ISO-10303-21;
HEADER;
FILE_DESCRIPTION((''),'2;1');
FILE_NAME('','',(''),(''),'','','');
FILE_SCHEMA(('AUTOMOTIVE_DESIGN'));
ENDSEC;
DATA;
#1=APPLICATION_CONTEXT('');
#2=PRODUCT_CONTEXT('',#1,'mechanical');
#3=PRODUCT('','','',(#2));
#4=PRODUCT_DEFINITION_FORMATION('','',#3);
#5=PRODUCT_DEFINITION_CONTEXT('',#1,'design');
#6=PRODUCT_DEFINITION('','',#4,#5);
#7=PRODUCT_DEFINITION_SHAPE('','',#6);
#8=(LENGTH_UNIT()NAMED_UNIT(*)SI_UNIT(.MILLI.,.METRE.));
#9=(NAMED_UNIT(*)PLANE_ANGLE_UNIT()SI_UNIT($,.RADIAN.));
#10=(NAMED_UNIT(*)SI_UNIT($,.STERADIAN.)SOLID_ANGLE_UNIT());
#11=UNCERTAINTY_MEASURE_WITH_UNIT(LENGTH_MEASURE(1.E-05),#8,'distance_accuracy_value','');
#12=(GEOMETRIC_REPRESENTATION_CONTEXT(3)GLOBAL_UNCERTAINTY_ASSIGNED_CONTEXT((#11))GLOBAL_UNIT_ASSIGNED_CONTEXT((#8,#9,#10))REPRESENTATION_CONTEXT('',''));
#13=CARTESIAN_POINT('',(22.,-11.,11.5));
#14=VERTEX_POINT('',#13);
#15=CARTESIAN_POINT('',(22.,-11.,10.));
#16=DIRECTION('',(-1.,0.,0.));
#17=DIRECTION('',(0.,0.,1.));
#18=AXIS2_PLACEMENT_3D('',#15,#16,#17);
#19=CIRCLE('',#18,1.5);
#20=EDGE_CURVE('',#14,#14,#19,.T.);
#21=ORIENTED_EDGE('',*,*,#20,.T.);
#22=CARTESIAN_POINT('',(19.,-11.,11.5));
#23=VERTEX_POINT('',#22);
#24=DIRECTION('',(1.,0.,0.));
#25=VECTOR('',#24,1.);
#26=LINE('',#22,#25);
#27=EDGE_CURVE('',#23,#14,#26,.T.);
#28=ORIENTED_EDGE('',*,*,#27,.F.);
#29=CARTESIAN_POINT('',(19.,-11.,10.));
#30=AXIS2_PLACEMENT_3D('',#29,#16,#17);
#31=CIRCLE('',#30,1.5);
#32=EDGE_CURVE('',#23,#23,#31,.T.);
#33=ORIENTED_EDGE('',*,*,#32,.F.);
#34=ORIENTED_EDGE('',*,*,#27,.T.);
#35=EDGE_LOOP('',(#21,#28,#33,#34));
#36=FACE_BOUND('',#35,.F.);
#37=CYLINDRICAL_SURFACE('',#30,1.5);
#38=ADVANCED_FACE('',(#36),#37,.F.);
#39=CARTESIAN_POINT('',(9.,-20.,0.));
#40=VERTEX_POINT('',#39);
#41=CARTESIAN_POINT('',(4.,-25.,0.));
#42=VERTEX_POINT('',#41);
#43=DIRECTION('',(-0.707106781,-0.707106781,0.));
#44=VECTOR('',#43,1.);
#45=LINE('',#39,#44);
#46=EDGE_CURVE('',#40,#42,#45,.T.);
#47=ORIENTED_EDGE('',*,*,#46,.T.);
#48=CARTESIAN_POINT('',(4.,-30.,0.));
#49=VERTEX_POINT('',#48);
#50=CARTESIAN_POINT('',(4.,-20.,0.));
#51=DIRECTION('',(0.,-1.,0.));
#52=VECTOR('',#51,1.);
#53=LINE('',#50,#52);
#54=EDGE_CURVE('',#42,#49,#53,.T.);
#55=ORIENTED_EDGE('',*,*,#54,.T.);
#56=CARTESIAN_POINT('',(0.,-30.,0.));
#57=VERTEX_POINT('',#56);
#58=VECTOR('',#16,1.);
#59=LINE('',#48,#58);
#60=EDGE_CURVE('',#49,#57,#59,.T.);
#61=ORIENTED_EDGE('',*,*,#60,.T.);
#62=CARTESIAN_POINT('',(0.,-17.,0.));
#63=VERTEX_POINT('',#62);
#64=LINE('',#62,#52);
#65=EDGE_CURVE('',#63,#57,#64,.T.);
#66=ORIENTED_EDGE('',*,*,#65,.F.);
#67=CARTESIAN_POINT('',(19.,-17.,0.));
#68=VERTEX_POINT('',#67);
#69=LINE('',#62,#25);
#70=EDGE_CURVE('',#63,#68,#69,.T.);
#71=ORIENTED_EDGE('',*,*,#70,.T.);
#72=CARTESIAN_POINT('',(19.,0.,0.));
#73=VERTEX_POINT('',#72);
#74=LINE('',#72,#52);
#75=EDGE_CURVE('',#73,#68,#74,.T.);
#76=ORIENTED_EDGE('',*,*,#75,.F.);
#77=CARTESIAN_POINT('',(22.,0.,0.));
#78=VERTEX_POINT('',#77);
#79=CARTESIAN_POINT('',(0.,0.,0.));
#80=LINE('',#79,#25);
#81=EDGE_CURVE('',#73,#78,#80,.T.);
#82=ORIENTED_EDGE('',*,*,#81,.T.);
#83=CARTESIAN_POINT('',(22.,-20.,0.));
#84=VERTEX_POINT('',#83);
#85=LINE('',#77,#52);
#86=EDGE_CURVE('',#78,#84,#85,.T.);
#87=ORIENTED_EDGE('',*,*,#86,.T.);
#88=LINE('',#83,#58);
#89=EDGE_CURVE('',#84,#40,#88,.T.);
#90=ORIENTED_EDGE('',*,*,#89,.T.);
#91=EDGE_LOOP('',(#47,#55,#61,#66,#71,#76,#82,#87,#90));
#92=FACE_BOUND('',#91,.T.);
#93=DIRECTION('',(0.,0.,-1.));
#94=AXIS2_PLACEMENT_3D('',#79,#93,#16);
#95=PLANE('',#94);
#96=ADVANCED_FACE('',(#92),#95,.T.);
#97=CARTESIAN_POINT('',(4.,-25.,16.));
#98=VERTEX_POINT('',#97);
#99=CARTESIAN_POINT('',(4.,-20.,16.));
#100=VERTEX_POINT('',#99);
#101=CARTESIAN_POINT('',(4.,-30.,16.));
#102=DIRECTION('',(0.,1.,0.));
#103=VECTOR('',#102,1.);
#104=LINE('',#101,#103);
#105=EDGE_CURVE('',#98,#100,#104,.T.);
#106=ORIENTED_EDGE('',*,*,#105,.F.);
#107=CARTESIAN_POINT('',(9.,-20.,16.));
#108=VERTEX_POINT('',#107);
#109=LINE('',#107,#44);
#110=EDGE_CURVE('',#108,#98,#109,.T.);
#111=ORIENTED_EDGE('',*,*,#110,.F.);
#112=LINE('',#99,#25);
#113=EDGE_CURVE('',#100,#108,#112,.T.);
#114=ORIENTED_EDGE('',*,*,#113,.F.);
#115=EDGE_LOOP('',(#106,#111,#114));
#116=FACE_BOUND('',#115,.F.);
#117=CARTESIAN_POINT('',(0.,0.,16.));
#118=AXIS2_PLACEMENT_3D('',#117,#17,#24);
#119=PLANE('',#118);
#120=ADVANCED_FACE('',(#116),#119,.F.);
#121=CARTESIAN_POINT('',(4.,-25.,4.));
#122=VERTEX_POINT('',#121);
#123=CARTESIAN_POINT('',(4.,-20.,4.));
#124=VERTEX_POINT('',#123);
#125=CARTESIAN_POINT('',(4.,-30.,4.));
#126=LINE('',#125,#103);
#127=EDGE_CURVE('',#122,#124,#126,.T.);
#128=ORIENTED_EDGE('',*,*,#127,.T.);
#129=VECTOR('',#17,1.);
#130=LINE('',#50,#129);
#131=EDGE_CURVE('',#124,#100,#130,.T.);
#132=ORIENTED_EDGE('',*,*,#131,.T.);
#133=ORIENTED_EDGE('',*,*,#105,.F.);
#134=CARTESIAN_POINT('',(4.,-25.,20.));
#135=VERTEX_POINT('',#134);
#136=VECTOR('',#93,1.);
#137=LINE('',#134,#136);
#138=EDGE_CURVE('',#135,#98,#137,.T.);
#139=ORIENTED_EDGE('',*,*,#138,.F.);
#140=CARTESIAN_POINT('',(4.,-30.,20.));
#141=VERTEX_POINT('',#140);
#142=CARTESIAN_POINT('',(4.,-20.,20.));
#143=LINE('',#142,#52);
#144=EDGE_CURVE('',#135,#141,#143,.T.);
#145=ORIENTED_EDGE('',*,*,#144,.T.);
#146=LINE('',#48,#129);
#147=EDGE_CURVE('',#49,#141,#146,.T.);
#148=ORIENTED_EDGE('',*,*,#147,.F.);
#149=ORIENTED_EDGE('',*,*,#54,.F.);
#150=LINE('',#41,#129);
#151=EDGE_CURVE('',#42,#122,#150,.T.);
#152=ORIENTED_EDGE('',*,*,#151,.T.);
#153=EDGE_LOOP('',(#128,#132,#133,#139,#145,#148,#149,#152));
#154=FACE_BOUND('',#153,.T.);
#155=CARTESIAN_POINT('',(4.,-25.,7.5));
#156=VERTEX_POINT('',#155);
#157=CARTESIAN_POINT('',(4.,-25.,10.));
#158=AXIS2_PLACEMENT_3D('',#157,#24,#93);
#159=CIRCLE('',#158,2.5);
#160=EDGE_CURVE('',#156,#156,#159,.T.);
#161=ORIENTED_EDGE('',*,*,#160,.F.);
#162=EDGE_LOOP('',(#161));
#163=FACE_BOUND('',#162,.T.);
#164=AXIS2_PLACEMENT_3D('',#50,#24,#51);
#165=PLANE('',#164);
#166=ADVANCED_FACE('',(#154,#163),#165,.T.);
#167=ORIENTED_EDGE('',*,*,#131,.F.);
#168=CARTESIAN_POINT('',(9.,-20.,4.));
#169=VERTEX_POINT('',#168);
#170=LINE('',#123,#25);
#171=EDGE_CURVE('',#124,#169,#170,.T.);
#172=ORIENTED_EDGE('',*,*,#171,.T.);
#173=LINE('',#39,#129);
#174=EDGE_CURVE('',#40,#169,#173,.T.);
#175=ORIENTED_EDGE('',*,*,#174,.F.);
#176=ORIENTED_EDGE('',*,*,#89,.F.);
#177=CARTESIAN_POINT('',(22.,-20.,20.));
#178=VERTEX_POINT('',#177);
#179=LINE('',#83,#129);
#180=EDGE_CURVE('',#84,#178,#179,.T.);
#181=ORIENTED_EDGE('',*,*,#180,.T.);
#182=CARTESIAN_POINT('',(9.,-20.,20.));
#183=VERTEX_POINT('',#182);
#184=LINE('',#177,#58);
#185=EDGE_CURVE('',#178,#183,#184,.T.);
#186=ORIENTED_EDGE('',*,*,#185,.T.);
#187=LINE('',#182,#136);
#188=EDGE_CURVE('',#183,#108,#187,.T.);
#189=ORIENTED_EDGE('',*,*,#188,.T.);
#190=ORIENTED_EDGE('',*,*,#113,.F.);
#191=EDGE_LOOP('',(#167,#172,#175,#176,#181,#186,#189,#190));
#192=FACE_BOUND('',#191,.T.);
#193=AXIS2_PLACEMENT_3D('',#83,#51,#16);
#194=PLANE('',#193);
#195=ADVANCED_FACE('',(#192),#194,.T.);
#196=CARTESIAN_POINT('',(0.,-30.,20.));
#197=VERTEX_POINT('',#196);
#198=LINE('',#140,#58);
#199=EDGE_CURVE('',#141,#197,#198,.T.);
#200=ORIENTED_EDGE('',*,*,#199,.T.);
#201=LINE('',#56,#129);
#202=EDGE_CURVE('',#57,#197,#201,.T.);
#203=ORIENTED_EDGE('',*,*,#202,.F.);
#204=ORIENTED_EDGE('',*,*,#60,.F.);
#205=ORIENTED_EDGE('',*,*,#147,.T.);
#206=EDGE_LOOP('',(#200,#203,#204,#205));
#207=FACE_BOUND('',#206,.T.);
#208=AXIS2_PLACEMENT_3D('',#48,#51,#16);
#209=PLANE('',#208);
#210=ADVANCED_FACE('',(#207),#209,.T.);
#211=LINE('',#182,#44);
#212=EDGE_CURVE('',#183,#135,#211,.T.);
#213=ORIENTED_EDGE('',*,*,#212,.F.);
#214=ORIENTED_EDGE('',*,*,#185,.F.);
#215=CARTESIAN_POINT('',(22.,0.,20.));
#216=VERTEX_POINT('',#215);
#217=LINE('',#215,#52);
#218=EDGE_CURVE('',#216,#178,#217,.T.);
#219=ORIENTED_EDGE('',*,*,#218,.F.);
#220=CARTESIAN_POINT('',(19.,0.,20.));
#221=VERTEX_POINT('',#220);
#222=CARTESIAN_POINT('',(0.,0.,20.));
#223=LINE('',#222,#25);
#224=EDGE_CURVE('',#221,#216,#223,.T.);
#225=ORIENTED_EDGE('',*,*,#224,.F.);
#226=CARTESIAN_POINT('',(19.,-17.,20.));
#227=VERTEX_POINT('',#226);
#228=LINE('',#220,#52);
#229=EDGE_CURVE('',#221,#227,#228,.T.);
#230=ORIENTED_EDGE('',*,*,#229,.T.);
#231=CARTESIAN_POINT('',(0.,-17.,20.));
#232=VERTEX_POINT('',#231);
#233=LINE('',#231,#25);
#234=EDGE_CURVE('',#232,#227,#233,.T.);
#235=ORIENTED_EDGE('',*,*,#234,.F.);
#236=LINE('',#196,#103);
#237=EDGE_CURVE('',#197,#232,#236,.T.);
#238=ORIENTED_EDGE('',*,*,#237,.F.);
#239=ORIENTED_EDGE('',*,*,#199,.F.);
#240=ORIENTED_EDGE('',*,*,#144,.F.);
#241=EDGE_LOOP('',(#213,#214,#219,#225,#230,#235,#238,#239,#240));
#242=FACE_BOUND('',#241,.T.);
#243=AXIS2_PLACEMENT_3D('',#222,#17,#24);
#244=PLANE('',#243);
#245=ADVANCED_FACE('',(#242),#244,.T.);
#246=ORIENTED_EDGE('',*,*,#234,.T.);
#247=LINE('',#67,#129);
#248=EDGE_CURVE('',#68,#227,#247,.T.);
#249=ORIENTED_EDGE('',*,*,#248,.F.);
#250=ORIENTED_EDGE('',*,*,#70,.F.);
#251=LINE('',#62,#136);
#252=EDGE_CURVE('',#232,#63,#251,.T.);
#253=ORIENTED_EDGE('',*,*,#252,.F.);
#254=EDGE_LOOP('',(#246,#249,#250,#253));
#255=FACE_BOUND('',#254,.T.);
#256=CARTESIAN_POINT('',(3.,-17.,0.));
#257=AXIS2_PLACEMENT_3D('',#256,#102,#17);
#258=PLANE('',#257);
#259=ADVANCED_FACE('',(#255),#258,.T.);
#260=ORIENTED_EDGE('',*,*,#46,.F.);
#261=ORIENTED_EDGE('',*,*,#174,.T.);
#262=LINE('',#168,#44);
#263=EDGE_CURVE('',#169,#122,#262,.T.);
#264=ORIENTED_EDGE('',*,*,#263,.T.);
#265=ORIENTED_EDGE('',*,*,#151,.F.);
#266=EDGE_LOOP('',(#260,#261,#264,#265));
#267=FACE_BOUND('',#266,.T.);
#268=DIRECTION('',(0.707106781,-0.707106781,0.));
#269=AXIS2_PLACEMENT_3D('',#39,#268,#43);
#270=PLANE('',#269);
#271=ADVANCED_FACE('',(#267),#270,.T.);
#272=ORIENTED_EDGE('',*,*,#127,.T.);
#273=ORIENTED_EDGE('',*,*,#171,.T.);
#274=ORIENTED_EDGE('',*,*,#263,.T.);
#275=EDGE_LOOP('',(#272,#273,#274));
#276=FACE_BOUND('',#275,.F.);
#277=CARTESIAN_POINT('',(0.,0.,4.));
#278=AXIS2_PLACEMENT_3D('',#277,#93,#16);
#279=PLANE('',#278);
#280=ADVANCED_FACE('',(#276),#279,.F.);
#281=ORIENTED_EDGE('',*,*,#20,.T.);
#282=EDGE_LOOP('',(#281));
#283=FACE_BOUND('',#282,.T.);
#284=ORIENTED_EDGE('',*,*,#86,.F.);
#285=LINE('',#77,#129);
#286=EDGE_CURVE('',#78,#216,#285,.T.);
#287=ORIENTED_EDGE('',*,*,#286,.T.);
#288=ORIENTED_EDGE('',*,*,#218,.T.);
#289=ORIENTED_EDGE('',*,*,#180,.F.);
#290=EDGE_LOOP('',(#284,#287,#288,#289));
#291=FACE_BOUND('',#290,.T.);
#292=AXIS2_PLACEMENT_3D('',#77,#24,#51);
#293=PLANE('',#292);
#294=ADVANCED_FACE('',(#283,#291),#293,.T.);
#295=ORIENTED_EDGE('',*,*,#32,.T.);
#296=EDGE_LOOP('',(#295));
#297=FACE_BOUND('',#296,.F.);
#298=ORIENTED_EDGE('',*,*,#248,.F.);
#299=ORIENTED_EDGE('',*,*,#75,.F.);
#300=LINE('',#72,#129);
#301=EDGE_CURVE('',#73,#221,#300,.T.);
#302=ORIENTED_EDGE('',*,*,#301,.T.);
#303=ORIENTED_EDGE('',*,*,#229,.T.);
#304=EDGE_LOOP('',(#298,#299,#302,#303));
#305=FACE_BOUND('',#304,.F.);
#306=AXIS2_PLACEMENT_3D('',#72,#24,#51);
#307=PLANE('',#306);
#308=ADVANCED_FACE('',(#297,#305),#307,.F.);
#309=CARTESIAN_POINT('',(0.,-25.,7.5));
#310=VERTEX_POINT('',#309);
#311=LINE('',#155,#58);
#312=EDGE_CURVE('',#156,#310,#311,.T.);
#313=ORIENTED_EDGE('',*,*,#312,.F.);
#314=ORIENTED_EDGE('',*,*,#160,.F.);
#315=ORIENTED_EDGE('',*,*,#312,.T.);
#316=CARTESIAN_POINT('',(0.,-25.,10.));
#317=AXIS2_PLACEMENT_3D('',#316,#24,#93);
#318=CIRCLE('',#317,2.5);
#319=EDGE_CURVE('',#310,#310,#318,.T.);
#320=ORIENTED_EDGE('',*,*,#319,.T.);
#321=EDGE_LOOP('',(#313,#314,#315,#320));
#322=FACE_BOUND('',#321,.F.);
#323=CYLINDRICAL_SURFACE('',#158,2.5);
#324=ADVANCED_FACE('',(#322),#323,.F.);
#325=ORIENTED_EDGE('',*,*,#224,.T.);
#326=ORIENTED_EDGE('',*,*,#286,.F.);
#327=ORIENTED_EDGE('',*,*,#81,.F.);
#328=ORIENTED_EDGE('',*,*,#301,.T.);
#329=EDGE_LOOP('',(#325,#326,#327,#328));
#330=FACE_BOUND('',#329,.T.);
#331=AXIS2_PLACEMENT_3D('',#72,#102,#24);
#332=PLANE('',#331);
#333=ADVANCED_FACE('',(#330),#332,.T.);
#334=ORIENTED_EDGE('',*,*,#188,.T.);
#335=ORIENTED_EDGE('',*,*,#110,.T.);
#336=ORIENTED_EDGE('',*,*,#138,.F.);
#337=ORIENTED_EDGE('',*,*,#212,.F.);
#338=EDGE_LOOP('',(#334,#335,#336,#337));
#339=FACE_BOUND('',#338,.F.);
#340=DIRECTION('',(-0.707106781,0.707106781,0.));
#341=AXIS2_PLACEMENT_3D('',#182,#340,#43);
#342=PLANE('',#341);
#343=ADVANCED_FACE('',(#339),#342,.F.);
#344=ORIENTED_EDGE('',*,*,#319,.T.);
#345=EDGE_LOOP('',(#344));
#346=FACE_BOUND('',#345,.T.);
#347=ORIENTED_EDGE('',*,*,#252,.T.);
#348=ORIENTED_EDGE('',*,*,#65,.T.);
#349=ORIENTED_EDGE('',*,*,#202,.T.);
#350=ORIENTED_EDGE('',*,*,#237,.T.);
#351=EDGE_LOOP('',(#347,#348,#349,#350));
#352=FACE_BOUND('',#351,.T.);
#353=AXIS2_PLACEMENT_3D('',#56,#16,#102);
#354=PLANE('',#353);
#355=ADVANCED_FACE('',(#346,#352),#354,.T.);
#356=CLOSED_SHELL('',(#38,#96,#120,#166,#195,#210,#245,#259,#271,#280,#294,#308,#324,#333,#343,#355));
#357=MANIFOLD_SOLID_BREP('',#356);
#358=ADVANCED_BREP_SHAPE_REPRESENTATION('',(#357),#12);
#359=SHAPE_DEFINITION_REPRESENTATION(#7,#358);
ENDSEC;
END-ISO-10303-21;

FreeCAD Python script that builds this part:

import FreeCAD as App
import Part
import Sketcher
from FreeCAD import Vector


def add_polygon(sketch, points):
    """Adds a closed chain of lines whose ends are joined by coincident constraints."""
    first, n = sketch.GeometryCount, len(points)
    for a, b in zip(points, points[1:] + points[:1]):
        sketch.addGeometry(Part.LineSegment(App.Vector(*a, 0), App.Vector(*b, 0)), False)
    for i in range(n):
        sketch.addConstraint(Sketcher.Constraint("Coincident", first + i, 2, first + (i + 1) % n, 1))

doc = App.newDocument("Part")
body = doc.addObject("PartDesign::Body", "Body")

sketch1 = doc.addObject("Sketcher::SketchObject", "Sketch")
body.addObject(sketch1)
sketch1.AttachmentSupport = (doc.XY_Plane, [""])
sketch1.MapMode = "FlatFace"
add_polygon(sketch1, [(3, 0), (0, 0), (0, -20), (22, -20), (22, 0), (19, 0), (19, -17), (3, -17)])
sketch1.addConstraint([
    Sketcher.Constraint("Horizontal", 0),
    Sketcher.Constraint("Vertical", 1),
    Sketcher.Constraint("Horizontal", 2),
    Sketcher.Constraint("Vertical", 3),
    Sketcher.Constraint("Horizontal", 4),
    Sketcher.Constraint("Vertical", 5),
    Sketcher.Constraint("Horizontal", 6),
    Sketcher.Constraint("Vertical", 7),
    Sketcher.Constraint("Coincident", 0, 2, -1, 1),
    Sketcher.Constraint("PointOnObject", 3, 2, -1),
    Sketcher.Constraint("Equal", 0, 4),
    Sketcher.Constraint("DistanceX", 0, 2, 0, 1, 3.0),
    Sketcher.Constraint("DistanceX", 2, 1, 2, 2, 22.0),
    Sketcher.Constraint("DistanceY", 1, 2, 1, 1, 20.0),
    Sketcher.Constraint("DistanceY", 2, 2, 5, 2, 3.0),
])
pad1 = doc.addObject("PartDesign::Pad", "Pad")
body.addObject(pad1)
pad1.Profile = sketch1
pad1.Length = 20

sketch2 = doc.addObject("Sketcher::SketchObject", "Sketch001")
body.addObject(sketch2)
sketch2.AttachmentSupport = (doc.YZ_Plane, [""])
sketch2.MapMode = "FlatFace"
sketch2.AttachmentOffset = App.Placement(Vector(0, 0, 3), App.Rotation())
add_polygon(sketch2, [(0, 20), (-17, 20), (-17, 0), (0, 0)])
sketch2.addConstraint([
    Sketcher.Constraint("Horizontal", 0),
    Sketcher.Constraint("Vertical", 1),
    Sketcher.Constraint("Horizontal", 2),
    Sketcher.Constraint("Vertical", 3),
    Sketcher.Constraint("Coincident", 2, 2, -1, 1),
    Sketcher.Constraint("DistanceX", 0, 2, 0, 1, 17.0),
    Sketcher.Constraint("DistanceY", 1, 2, 1, 1, 20.0),
])
pocket1 = doc.addObject("PartDesign::Pocket", "Pocket")
body.addObject(pocket1)
pocket1.Profile = sketch2
pocket1.Type = "ThroughAll"

sketch3 = doc.addObject("Sketcher::SketchObject", "Sketch002")
body.addObject(sketch3)
sketch3.AttachmentSupport = (doc.XY_Plane, [""])
sketch3.MapMode = "FlatFace"
add_polygon(sketch3, [(0, -30), (0, -20), (4, -20), (4, -30)])
sketch3.addConstraint([
    Sketcher.Constraint("Vertical", 0),
    Sketcher.Constraint("Horizontal", 1),
    Sketcher.Constraint("Vertical", 2),
    Sketcher.Constraint("Horizontal", 3),
    Sketcher.Constraint("PointOnObject", 0, 2, -2),
    Sketcher.Constraint("DistanceX", 1, 1, 1, 2, 4.0),
    Sketcher.Constraint("DistanceY", 0, 1, 0, 2, 10.0),
    Sketcher.Constraint("DistanceY", 0, 2, -1, 1, 20.0),
])
pad2 = doc.addObject("PartDesign::Pad", "Pad001")
body.addObject(pad2)
pad2.Profile = sketch3
pad2.Length = 20

sketch4 = doc.addObject("Sketcher::SketchObject", "Sketch003")
body.addObject(sketch4)
sketch4.AttachmentSupport = (doc.YZ_Plane, [""])
sketch4.MapMode = "FlatFace"
sketch4.AttachmentOffset = App.Placement(Vector(0, 0, 4), App.Rotation())
sketch4.addGeometry(Part.Circle(Vector(-25, 10, 0), Vector(0, 0, 1), 2.5), False)
sketch4.addConstraint([
    Sketcher.Constraint("Diameter", 0, 5.0),
    Sketcher.Constraint("DistanceY", -1, 1, 0, 3, 10.0),
    Sketcher.Constraint("DistanceX", 0, 3, -1, 1, 25.0),
])
pocket2 = doc.addObject("PartDesign::Pocket", "Pocket001")
body.addObject(pocket2)
pocket2.Profile = sketch4
pocket2.Type = "ThroughAll"

sketch5 = doc.addObject("Sketcher::SketchObject", "Sketch004")
body.addObject(sketch5)
sketch5.AttachmentSupport = (doc.XY_Plane, [""])
sketch5.MapMode = "FlatFace"
add_polygon(sketch5, [(4, -25), (4, -20), (9, -20)])
sketch5.addConstraint([
    Sketcher.Constraint("Vertical", 0),
    Sketcher.Constraint("Horizontal", 1),
    Sketcher.Constraint("Equal", 1, 0),
    Sketcher.Constraint("DistanceX", 1, 1, 1, 2, 5.0),
    Sketcher.Constraint("DistanceX", -1, 1, 0, 2, 4.0),
    Sketcher.Constraint("DistanceY", 0, 2, -1, 1, 20.0),
])
pad3 = doc.addObject("PartDesign::Pad", "Pad002")
body.addObject(pad3)
pad3.Profile = sketch5
pad3.Length = 4

sketch6 = doc.addObject("Sketcher::SketchObject", "Sketch005")
body.addObject(sketch6)
sketch6.AttachmentSupport = (doc.XY_Plane, [""])
sketch6.MapMode = "FlatFace"
sketch6.AttachmentOffset = App.Placement(Vector(0, 0, 20), App.Rotation())
add_polygon(sketch6, [(9, -20), (4, -20), (4, -25)])
sketch6.addConstraint([
    Sketcher.Constraint("Horizontal", 0),
    Sketcher.Constraint("Vertical", 1),
    Sketcher.Constraint("Equal", 0, 1),
    Sketcher.Constraint("DistanceX", 0, 2, 0, 1, 5.0),
    Sketcher.Constraint("DistanceX", -1, 1, 0, 2, 4.0),
    Sketcher.Constraint("DistanceY", 0, 2, -1, 1, 20.0),
])
pad4 = doc.addObject("PartDesign::Pad", "Pad003")
body.addObject(pad4)
pad4.Profile = sketch6
pad4.Length = 4
pad4.Reversed = True

sketch7 = doc.addObject("Sketcher::SketchObject", "Sketch006")
body.addObject(sketch7)
sketch7.AttachmentSupport = (doc.YZ_Plane, [""])
sketch7.MapMode = "FlatFace"
sketch7.AttachmentOffset = App.Placement(Vector(0, 0, 19), App.Rotation())
sketch7.addGeometry(Part.Circle(Vector(-11, 10, 0), Vector(0, 0, 1), 1.5), False)
sketch7.addConstraint([
    Sketcher.Constraint("Diameter", 0, 3.0),
    Sketcher.Constraint("DistanceY", -1, 1, 0, 3, 10.0),
    Sketcher.Constraint("DistanceX", 0, 3, -1, 1, 11.0),
])
pocket3 = doc.addObject("PartDesign::Pocket", "Pocket002")
body.addObject(pocket3)
pocket3.Profile = sketch7
pocket3.Type = "ThroughAll"
pocket3.Reversed = True

doc.recompute()
